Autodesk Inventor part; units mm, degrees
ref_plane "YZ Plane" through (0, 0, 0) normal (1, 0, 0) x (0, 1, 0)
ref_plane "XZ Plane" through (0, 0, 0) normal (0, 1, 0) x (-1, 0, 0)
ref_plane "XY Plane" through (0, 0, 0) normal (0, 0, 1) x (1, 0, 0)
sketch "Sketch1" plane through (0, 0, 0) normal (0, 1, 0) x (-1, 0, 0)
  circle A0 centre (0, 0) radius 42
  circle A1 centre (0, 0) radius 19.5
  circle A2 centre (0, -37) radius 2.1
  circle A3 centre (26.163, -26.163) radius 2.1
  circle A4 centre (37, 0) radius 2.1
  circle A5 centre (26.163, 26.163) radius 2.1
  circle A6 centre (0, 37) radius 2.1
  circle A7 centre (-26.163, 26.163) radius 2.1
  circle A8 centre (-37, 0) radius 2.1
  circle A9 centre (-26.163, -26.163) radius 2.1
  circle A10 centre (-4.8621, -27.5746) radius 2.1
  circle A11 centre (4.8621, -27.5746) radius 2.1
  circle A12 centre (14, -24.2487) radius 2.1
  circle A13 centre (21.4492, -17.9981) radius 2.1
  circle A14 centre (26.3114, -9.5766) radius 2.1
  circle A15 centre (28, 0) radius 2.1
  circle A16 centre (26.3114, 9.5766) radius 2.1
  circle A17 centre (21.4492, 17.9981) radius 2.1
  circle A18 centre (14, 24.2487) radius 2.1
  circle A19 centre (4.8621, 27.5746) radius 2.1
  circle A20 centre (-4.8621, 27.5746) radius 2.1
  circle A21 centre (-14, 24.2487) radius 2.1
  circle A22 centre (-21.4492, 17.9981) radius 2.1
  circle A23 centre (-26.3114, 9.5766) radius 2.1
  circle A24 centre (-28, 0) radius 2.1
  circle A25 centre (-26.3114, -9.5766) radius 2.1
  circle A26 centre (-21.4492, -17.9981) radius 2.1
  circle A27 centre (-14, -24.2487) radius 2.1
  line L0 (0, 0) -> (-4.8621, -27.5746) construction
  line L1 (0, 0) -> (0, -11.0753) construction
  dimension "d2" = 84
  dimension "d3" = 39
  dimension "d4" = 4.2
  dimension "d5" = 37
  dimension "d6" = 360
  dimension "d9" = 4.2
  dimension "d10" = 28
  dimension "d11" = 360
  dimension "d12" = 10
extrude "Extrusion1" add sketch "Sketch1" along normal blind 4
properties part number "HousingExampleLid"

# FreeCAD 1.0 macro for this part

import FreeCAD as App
import Part
import Sketcher
from FreeCAD import Vector

doc = App.newDocument("Part")
body = doc.addObject("PartDesign::Body", "Body")

sketch1 = body.newObject("Sketcher::SketchObject", "Sketch")
sketch1.AttachmentSupport = (doc.getObject("XZ_Plane"), [""])
sketch1.MapMode = "FlatFace"
sketch1.addGeometry([
    Part.Circle(Vector(0, 0, 0), Vector(0, 0, 1), 42),
    Part.Circle(Vector(26.2, -26.2, 0), Vector(0, 0, 1), 2.1),
    Part.Circle(Vector(14, -24.2, 0), Vector(0, 0, 1), 2.1),
    Part.Circle(Vector(4.9, -27.6, 0), Vector(0, 0, 1), 2.1),
    Part.Circle(Vector(21.4, -18, 0), Vector(0, 0, 1), 2.1),
    Part.Circle(Vector(26.3, -9.6, 0), Vector(0, 0, 1), 2.1),
    Part.Circle(Vector(0, -37, 0), Vector(0, 0, 1), 2.1),
    Part.Circle(Vector(-4.9, -27.6, 0), Vector(0, 0, 1), 2.1),
    Part.Circle(Vector(-14, -24.2, 0), Vector(0, 0, 1), 2.1),
    Part.Circle(Vector(-26.2, -26.2, 0), Vector(0, 0, 1), 2.1),
    Part.Circle(Vector(-21.4, -18, 0), Vector(0, 0, 1), 2.1),
    Part.Circle(Vector(-26.3, -9.6, 0), Vector(0, 0, 1), 2.1),
    Part.Circle(Vector(37, 0, 0), Vector(0, 0, 1), 2.1),
    Part.Circle(Vector(28, 0, 0), Vector(0, 0, 1), 2.1),
    Part.Circle(Vector(26.3, 9.6, 0), Vector(0, 0, 1), 2.1),
    Part.Circle(Vector(21.4, 18, 0), Vector(0, 0, 1), 2.1),
    Part.Circle(Vector(26.2, 26.2, 0), Vector(0, 0, 1), 2.1),
    Part.Circle(Vector(14, 24.2, 0), Vector(0, 0, 1), 2.1),
    Part.Circle(Vector(4.9, 27.6, 0), Vector(0, 0, 1), 2.1),
    Part.Circle(Vector(0, 0, 0), Vector(0, 0, 1), 19.5),
    Part.Circle(Vector(-28, 0, 0), Vector(0, 0, 1), 2.1),
    Part.Circle(Vector(-26.3, 9.6, 0), Vector(0, 0, 1), 2.1),
    Part.Circle(Vector(-37, 0, 0), Vector(0, 0, 1), 2.1),
    Part.Circle(Vector(-21.4, 18, 0), Vector(0, 0, 1), 2.1),
    Part.Circle(Vector(-4.9, 27.6, 0), Vector(0, 0, 1), 2.1),
    Part.Circle(Vector(-14, 24.2, 0), Vector(0, 0, 1), 2.1),
    Part.Circle(Vector(0, 37, 0), Vector(0, 0, 1), 2.1),
    Part.Circle(Vector(-26.2, 26.2, 0), Vector(0, 0, 1), 2.1),
], False)
sketch1.addConstraint([
    Sketcher.Constraint("Coincident", 0, 3, -1, 1),
    Sketcher.Constraint("Coincident", 19, 3, -1, 1),
    Sketcher.Constraint("Equal", 1, 2),
    Sketcher.Constraint("Equal", 2, 3),
    Sketcher.Constraint("Equal", 3, 4),
    Sketcher.Constraint("Equal", 4, 5),
    Sketcher.Constraint("Equal", 5, 6),
    Sketcher.Constraint("Equal", 6, 7),
    Sketcher.Constraint("Equal", 7, 8),
    Sketcher.Constraint("Equal", 8, 9),
    Sketcher.Constraint("Equal", 9, 10),
    Sketcher.Constraint("Equal", 10, 11),
    Sketcher.Constraint("Equal", 11, 12),
    Sketcher.Constraint("Equal", 12, 13),
    Sketcher.Constraint("Equal", 13, 14),
    Sketcher.Constraint("Equal", 14, 15),
    Sketcher.Constraint("Equal", 15, 16),
    Sketcher.Constraint("Equal", 16, 17),
    Sketcher.Constraint("Equal", 17, 18),
    Sketcher.Constraint("Equal", 18, 20),
    Sketcher.Constraint("Equal", 20, 21),
    Sketcher.Constraint("Equal", 21, 22),
    Sketcher.Constraint("Equal", 22, 23),
    Sketcher.Constraint("Equal", 23, 24),
    Sketcher.Constraint("Equal", 24, 25),
    Sketcher.Constraint("Equal", 25, 26),
    Sketcher.Constraint("Equal", 26, 27),
    Sketcher.Constraint("Symmetric", 11, 3, 14, 3, -1, 1),
    Sketcher.Constraint("Symmetric", 10, 3, 15, 3, -1, 1),
    Sketcher.Constraint("Symmetric", 9, 3, 16, 3, -1, 1),
    Sketcher.Constraint("Symmetric", 8, 3, 17, 3, -1, 1),
    Sketcher.Constraint("Symmetric", 7, 3, 18, 3, -1, 1),
    Sketcher.Constraint("Symmetric", 13, 3, 20, 3, -1, 1),
    Sketcher.Constraint("Symmetric", 5, 3, 21, 3, -1, 1),
    Sketcher.Constraint("Symmetric", 12, 3, 22, 3, -1, 1),
    Sketcher.Constraint("Symmetric", 4, 3, 23, 3, -1, 1),
    Sketcher.Constraint("Symmetric", 3, 3, 24, 3, -1, 1),
    Sketcher.Constraint("Symmetric", 2, 3, 25, 3, -1, 1),
    Sketcher.Constraint("Symmetric", 6, 3, 26, 3, -1, 1),
    Sketcher.Constraint("Symmetric", 1, 3, 27, 3, -1, 1),
    Sketcher.Constraint("Symmetric", 3, 3, 7, 3, -2),
    Sketcher.Constraint("Symmetric", 2, 3, 8, 3, -2),
    Sketcher.Constraint("Symmetric", 1, 3, 9, 3, -2),
    Sketcher.Constraint("Symmetric", 4, 3, 10, 3, -2),
    Sketcher.Constraint("Symmetric", 5, 3, 11, 3, -2),
    Sketcher.Constraint("PointOnObject", 6, 3, -2),
    Sketcher.Constraint("PointOnObject", 12, 3, -1),
    Sketcher.Constraint("PointOnObject", 13, 3, -1),
    Sketcher.Constraint("Diameter", 0, 84.0),
    Sketcher.Constraint("Diameter", 19, 39.0),
    Sketcher.Constraint("Diameter", 1, 4.2),
    Sketcher.Constraint("DistanceY", 6, 3, -1, 1, 37.0),
    Sketcher.Constraint("DistanceX", -1, 1, 12, 3, 37.0),
    Sketcher.Constraint("DistanceX", -1, 1, 13, 3, 28.0),
    Sketcher.Constraint("DistanceX", 8, 3, 2, 3, 28.0),
    Sketcher.Constraint("DistanceX", -1, 1, 1, 3, 26.163),
    Sketcher.Constraint("DistanceY", 1, 3, -1, 1, 26.163),
    Sketcher.Constraint("DistanceX", -1, 1, 3, 3, 4.862),
    Sketcher.Constraint("DistanceY", 4, 3, -1, 1, 17.998),
    Sketcher.Constraint("DistanceY", 3, 3, 2, 3, 3.326),
    Sketcher.Constraint("DistanceX", 3, 3, 4, 3, 16.587),
    Sketcher.Constraint("DistanceY", 2, 3, 5, 3, 14.672),
    Sketcher.Constraint("DistanceY", 2, 3, -1, 1, 24.2487),
    Sketcher.Constraint("DistanceX", -1, 1, 5, 3, 26.3114),
])
pad1 = body.newObject("PartDesign::Pad", "Pad")
pad1.Profile = sketch1
pad1.Length = 4
pad1.Reversed = True

doc.recompute()
